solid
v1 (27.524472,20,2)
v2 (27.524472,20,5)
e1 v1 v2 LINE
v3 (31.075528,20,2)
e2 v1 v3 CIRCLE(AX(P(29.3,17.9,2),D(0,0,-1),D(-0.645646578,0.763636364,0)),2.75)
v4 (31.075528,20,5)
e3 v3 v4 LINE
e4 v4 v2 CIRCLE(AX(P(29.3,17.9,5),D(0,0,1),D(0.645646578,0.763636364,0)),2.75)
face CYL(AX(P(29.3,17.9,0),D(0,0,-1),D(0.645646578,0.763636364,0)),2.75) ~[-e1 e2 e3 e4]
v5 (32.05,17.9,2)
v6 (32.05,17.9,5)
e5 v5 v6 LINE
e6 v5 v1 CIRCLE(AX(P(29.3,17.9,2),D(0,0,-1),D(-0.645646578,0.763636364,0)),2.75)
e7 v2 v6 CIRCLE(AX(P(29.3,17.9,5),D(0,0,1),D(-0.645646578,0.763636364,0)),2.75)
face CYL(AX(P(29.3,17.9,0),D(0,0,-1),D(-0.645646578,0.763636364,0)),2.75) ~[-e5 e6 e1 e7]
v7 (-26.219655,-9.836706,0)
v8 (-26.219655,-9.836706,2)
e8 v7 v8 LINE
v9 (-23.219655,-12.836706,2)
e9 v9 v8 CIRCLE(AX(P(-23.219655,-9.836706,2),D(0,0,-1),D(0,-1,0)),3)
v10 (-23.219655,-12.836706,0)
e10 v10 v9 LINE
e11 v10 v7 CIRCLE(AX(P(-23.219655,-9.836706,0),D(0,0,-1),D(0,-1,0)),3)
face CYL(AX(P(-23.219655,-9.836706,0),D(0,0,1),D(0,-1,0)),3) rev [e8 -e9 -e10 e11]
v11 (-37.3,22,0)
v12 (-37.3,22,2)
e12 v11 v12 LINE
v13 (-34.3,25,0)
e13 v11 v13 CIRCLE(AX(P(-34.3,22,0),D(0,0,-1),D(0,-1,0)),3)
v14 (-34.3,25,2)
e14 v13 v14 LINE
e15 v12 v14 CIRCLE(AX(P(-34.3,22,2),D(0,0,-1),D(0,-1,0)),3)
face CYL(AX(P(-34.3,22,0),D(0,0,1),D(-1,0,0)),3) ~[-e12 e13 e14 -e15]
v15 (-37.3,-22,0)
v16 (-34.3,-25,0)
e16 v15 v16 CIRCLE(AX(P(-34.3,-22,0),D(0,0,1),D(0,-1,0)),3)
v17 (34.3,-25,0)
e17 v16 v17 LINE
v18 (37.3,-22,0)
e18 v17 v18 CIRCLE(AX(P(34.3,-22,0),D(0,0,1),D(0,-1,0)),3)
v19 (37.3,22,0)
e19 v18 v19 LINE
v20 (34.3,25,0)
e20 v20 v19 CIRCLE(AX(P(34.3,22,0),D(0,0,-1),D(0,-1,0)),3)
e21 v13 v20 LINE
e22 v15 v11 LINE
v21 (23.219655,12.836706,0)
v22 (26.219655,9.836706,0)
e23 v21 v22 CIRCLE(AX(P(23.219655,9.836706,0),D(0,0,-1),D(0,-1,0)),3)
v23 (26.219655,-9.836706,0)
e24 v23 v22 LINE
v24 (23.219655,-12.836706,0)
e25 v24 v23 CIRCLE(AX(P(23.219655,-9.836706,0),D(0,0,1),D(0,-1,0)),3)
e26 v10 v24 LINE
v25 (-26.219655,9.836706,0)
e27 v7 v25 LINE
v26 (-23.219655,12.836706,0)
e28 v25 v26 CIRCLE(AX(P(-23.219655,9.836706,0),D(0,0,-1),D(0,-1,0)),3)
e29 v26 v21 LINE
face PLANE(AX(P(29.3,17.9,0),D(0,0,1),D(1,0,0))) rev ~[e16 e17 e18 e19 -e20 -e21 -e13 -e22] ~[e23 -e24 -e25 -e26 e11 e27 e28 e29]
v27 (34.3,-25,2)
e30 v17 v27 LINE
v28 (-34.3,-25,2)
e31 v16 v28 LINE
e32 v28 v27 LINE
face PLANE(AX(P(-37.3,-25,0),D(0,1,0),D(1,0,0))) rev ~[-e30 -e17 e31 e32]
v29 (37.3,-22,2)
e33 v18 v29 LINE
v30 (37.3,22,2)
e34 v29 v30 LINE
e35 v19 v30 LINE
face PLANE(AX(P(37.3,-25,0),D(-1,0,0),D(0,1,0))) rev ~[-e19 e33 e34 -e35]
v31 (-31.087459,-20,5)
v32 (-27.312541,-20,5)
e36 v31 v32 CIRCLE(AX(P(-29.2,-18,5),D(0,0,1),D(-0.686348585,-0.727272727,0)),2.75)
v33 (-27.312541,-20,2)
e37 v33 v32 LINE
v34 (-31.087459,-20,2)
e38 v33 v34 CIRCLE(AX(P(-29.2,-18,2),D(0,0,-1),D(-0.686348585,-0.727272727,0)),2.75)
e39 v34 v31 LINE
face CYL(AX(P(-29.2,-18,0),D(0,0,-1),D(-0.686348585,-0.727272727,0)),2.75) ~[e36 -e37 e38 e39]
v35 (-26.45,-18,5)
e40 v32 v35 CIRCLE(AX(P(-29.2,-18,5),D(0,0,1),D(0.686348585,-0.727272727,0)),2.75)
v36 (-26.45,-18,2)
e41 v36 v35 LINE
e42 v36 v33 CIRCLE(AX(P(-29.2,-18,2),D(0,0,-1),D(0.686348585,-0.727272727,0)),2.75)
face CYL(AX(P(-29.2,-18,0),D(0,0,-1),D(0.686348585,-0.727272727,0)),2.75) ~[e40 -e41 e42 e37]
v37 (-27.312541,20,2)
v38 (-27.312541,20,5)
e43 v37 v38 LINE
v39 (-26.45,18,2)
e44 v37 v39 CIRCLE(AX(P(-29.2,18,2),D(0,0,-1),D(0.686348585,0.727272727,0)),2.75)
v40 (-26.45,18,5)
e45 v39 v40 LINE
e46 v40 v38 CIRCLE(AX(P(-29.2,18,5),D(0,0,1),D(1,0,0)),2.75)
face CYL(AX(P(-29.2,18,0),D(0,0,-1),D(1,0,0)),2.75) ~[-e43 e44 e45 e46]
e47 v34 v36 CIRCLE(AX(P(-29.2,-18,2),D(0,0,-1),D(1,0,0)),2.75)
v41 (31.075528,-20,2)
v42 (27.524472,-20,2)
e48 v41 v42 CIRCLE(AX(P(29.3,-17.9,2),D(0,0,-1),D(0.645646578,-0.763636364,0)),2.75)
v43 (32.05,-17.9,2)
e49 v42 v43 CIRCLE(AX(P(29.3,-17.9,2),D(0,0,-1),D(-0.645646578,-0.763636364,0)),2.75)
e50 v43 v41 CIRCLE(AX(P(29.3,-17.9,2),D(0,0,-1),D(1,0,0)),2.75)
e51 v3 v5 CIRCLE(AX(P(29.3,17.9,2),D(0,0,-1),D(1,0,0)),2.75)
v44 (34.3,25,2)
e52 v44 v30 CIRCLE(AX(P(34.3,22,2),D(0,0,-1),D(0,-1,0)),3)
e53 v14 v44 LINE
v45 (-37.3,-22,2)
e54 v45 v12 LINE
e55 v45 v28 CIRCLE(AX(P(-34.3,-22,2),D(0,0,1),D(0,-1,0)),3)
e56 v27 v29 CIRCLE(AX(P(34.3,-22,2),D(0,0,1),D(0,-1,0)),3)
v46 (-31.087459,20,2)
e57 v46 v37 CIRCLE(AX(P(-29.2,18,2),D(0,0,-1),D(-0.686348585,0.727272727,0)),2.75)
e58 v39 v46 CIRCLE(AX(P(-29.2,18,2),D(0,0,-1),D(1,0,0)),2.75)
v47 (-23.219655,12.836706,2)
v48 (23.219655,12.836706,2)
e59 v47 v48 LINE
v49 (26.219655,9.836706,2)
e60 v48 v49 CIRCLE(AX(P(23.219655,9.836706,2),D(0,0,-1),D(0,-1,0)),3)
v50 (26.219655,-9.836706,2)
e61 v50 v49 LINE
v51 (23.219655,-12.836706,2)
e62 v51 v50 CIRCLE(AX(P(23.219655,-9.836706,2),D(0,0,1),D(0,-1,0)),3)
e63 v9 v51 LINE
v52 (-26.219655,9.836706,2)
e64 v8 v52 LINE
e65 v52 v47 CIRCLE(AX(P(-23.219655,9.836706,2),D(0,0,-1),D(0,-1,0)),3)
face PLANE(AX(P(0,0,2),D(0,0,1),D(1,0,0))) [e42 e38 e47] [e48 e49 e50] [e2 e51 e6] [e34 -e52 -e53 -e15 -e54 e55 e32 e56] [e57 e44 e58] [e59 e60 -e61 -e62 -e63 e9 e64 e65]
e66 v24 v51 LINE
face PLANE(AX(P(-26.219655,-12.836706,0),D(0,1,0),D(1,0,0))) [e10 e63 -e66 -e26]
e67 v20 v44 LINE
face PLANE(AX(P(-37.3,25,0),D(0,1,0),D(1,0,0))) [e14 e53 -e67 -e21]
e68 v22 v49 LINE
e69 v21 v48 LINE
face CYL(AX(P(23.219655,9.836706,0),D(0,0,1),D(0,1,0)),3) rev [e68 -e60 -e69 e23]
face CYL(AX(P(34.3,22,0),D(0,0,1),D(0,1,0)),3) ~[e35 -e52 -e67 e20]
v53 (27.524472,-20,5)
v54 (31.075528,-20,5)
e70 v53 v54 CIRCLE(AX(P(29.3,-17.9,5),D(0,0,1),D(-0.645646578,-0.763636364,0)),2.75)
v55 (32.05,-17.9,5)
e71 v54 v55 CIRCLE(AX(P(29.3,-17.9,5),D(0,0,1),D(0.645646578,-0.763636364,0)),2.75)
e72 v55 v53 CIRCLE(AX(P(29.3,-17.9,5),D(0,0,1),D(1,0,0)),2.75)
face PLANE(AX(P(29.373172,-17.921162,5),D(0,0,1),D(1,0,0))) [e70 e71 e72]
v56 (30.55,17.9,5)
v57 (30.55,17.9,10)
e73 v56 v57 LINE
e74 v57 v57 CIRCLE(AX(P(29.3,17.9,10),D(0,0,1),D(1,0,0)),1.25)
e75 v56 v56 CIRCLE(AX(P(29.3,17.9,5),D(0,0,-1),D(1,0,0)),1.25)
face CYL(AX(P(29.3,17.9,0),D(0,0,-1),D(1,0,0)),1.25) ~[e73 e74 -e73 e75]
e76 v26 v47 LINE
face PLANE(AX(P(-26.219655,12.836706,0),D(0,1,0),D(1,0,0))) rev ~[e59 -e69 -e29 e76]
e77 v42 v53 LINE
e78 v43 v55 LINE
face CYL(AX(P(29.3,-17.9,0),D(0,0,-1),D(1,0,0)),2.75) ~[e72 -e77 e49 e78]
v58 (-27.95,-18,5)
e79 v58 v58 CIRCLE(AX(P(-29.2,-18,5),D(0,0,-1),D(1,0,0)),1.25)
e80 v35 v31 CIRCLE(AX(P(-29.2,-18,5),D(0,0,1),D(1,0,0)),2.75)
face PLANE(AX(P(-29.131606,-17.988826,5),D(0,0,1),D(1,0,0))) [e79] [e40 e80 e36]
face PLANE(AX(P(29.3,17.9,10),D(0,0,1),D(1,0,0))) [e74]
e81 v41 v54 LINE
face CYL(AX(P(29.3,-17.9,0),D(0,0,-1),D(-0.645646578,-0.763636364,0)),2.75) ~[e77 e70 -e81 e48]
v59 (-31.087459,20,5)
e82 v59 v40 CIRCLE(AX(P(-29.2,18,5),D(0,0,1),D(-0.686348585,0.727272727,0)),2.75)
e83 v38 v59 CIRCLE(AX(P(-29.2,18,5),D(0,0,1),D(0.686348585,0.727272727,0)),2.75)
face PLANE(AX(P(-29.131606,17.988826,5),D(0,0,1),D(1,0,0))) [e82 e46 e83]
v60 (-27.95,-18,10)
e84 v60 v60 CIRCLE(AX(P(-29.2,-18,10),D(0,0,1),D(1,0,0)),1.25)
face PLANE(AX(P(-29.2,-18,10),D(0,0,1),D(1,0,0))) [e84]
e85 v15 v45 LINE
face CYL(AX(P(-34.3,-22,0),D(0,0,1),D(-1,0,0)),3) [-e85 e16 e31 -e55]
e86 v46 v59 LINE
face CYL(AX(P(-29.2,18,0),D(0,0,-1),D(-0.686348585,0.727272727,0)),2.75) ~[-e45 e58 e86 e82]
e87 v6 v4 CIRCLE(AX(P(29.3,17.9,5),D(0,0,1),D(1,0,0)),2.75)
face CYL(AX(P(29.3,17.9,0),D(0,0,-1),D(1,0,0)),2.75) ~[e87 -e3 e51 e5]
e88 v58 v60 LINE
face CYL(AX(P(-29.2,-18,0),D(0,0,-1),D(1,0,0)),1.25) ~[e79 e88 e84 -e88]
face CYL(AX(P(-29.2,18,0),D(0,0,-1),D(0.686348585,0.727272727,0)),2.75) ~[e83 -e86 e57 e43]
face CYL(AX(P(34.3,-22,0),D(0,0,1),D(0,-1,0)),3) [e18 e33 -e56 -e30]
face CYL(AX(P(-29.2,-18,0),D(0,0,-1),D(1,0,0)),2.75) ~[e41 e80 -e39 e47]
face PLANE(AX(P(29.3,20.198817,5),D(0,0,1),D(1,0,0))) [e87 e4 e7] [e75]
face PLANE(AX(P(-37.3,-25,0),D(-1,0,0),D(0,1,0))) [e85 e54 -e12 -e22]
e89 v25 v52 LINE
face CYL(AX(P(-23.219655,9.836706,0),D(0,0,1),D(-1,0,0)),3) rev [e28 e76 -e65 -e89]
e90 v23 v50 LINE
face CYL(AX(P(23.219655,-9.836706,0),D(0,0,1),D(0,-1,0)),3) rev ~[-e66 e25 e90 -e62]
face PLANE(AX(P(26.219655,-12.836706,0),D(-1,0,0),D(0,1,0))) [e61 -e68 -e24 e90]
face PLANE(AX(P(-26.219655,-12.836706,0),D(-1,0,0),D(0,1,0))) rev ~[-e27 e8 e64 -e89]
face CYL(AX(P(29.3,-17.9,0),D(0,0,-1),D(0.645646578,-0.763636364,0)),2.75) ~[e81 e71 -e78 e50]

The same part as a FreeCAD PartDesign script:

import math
import FreeCAD as App
import Part
import Sketcher

V = App.Vector
Q = App.Units.Quantity


def edges_at(feature, points):
    """Names of the edges that pass closest to the given points."""
    edges = feature.Shape.Edges
    near = lambda p: min(range(len(edges)), key=lambda i: edges[i].distToShape(Part.Vertex(*p))[0])
    return sorted({f"Edge{near(p) + 1}" for p in points})


def add_polygon(sketch, points):
    """Adds a closed chain of lines whose ends are joined by coincident constraints."""
    first, n = sketch.GeometryCount, len(points)
    for a, b in zip(points, points[1:] + points[:1]):
        sketch.addGeometry(Part.LineSegment(App.Vector(*a, 0), App.Vector(*b, 0)), False)
    for i in range(n):
        sketch.addConstraint(Sketcher.Constraint("Coincident", first + i, 2, first + (i + 1) % n, 1))

doc = App.newDocument("Part")
params = doc.addObject("Spreadsheet::Sheet", "Params")
for row, (alias, value) in enumerate([
    ("sketch1_height", "50 mm"),
    ("sketch1_radius", "2.75 mm"),
    ("sketch1_width", "74.6 mm"),
    ("pad1_length", "2 mm"),
    ("sketch2_radius", "2.75 mm"),
    ("pad2_length", "5 mm"),
    ("sketch3_diameter", "2.5 mm"),
    ("pad3_length", "10 mm"),
    ("fillet_radius", "3 mm"),
    ("fillet2_radius", "3 mm"),
], start=1):
    params.set(f"A{row}", alias)
    params.set(f"B{row}", "=" + value)
    params.setAlias(f"B{row}", alias)

body = doc.addObject("PartDesign::Body", "Body")

sketch1 = body.newObject("Sketcher::SketchObject", "Sketch")
sketch1.AttachmentSupport = (doc.getObject("XY_Plane"), [""])
sketch1.MapMode = "FlatFace"
add_polygon(sketch1, [(-37.3, 25), (-37.3, -25), (37.3, -25), (37.3, 25)])
sketch1.addGeometry(Part.ArcOfCircle(Part.Circle(V(29.3, -17.9, 0), V(0, 0, 1), 2.8), math.radians(-130), math.radians(-50)), False)
sketch1.addGeometry(Part.ArcOfCircle(Part.Circle(V(29.3, -17.9, 0), V(0, 0, 1), 2.8), math.radians(0), math.radians(230)), False)
sketch1.addGeometry(Part.ArcOfCircle(Part.Circle(V(29.3, -17.9, 0), V(0, 0, 1), 2.8), math.radians(-50), math.radians(0)), False)
add_polygon(sketch1, [(26.2, -12.8), (-26.2, -12.8), (-26.2, 12.8), (26.2, 12.8)])
sketch1.addGeometry(Part.ArcOfCircle(Part.Circle(V(-29.2, 18, 0), V(0, 0, 1), 2.8), math.radians(47), math.radians(133)), False)
sketch1.addGeometry(Part.ArcOfCircle(Part.Circle(V(-29.2, 18, 0), V(0, 0, 1), 2.8), math.radians(0), math.radians(47)), False)
sketch1.addGeometry(Part.ArcOfCircle(Part.Circle(V(-29.2, 18, 0), V(0, 0, 1), 2.8), math.radians(133), math.radians(360)), False)
sketch1.addGeometry(Part.ArcOfCircle(Part.Circle(V(29.3, 17.9, 0), V(0, 0, 1), 2.8), math.radians(50), math.radians(130)), False)
sketch1.addGeometry(Part.LineSegment(V(31.1, 20, 0), V(27.5, 20, 0)), False)
sketch1.addConstraint([
    Sketcher.Constraint("Tangent", 4, 1, 5, 2),
    Sketcher.Constraint("Tangent", 5, 1, 6, 2),
    Sketcher.Constraint("Tangent", 6, 1, 4, 2),
    Sketcher.Constraint("Tangent", 11, 1, 12, 2),
    Sketcher.Constraint("Tangent", 12, 1, 13, 2),
    Sketcher.Constraint("Tangent", 13, 1, 11, 2),
    Sketcher.Constraint("Coincident", 14, 1, 15, 1),
    Sketcher.Constraint("Coincident", 15, 2, 14, 2),
    Sketcher.Constraint("Vertical", 0),
    Sketcher.Constraint("Horizontal", 1),
    Sketcher.Constraint("Vertical", 2),
    Sketcher.Constraint("Horizontal", 3),
    Sketcher.Constraint("Horizontal", 7),
    Sketcher.Constraint("Vertical", 8),
    Sketcher.Constraint("Horizontal", 9),
    Sketcher.Constraint("Vertical", 10),
    Sketcher.Constraint("Horizontal", 15),
    Sketcher.Constraint("Equal", 6, 11),
    Sketcher.Constraint("Equal", 13, 14),
    Sketcher.Constraint("Symmetric", 0, 2, 2, 2, -1, 1),
    Sketcher.Constraint("Symmetric", 7, 2, 9, 2, -1, 1),
    Sketcher.Constraint("Symmetric", 4, 3, 14, 3, -1),
    Sketcher.Constraint("Horizontal", 6, 3, 5, 1),
    Sketcher.Constraint("Horizontal", 4, 1, 6, 1),
    Sketcher.Constraint("Horizontal", 13, 3, 12, 1),
    Sketcher.Constraint("Horizontal", 11, 1, 13, 1),
    Sketcher.Constraint("Horizontal", 13, 1, 14, 1),
    Sketcher.Constraint("Vertical", 6, 1, 14, 1),
    Sketcher.Constraint("DistanceY", 0, 2, 0, 1, Q("50 mm")),
    Sketcher.Constraint("Radius", 4, Q("2.75 mm")),
    Sketcher.Constraint("DistanceX", 1, 1, 1, 2, Q("74.6 mm")),
    Sketcher.Constraint("DistanceY", -1, 1, 11, 3, Q("18 mm")),
    Sketcher.Constraint("DistanceY", 4, 1, -1, 1, Q("20 mm")),
    Sketcher.Constraint("DistanceX", 4, 3, 1, 2, Q("8 mm")),
    Sketcher.Constraint("DistanceY", 4, 3, -1, 1, Q("17.9 mm")),
    Sketcher.Constraint("DistanceX", 11, 3, -1, 1, Q("29.2 mm")),
    Sketcher.Constraint("DistanceX", 7, 2, 7, 1, Q("52.43931 mm")),
    Sketcher.Constraint("DistanceY", 8, 1, 8, 2, Q("25.673412 mm")),
])
sketch1.setExpression("Constraints[36]", "Params.sketch1_height")
sketch1.setExpression("Constraints[37]", "Params.sketch1_radius")
sketch1.setExpression("Constraints[38]", "Params.sketch1_width")
pad1 = body.newObject("PartDesign::Pad", "Pad")
pad1.Profile = sketch1
pad1.setExpression("Length", "Params.pad1_length")

sketch2 = body.newObject("Sketcher::SketchObject", "Sketch001")
sketch2.AttachmentSupport = (doc.getObject("XY_Plane"), [""])
sketch2.MapMode = "FlatFace"
sketch2.addGeometry([
    Part.ArcOfCircle(Part.Circle(V(29.3, 17.9, 0), V(0, 0, 1), 2.8), math.radians(50), math.radians(130)),
    Part.ArcOfCircle(Part.Circle(V(29.3, 17.9, 0), V(0, 0, 1), 2.8), math.radians(130), math.radians(360)),
    Part.ArcOfCircle(Part.Circle(V(29.3, 17.9, 0), V(0, 0, 1), 2.8), math.radians(0), math.radians(50)),
    Part.ArcOfCircle(Part.Circle(V(-29.2, -18, 0), V(0, 0, 1), 2.8), math.radians(0), math.radians(227)),
    Part.ArcOfCircle(Part.Circle(V(-29.2, -18, 0), V(0, 0, 1), 2.8), math.radians(-133), math.radians(-47)),
    Part.ArcOfCircle(Part.Circle(V(-29.2, -18, 0), V(0, 0, 1), 2.8), math.radians(-47), math.radians(0)),
    Part.ArcOfCircle(Part.Circle(V(-29.2, 18, 0), V(0, 0, 1), 2.8), math.radians(133), math.radians(360)),
    Part.ArcOfCircle(Part.Circle(V(-29.2, 18, 0), V(0, 0, 1), 2.8), math.radians(0), math.radians(47)),
    Part.ArcOfCircle(Part.Circle(V(-29.2, 18, 0), V(0, 0, 1), 2.8), math.radians(47), math.radians(133)),
    Part.ArcOfCircle(Part.Circle(V(29.3, -17.9, 0), V(0, 0, 1), 2.8), math.radians(0), math.radians(230)),
    Part.ArcOfCircle(Part.Circle(V(29.3, -17.9, 0), V(0, 0, 1), 2.8), math.radians(-130), math.radians(-50)),
    Part.ArcOfCircle(Part.Circle(V(29.3, -17.9, 0), V(0, 0, 1), 2.8), math.radians(-50), math.radians(0)),
], False)
sketch2.addConstraint([
    Sketcher.Constraint("Tangent", 0, 2, 1, 1),
    Sketcher.Constraint("Tangent", 1, 2, 2, 1),
    Sketcher.Constraint("Tangent", 2, 2, 0, 1),
    Sketcher.Constraint("Tangent", 3, 2, 4, 1),
    Sketcher.Constraint("Tangent", 4, 2, 5, 1),
    Sketcher.Constraint("Tangent", 5, 2, 3, 1),
    Sketcher.Constraint("Tangent", 6, 2, 7, 1),
    Sketcher.Constraint("Tangent", 7, 2, 8, 1),
    Sketcher.Constraint("Tangent", 8, 2, 6, 1),
    Sketcher.Constraint("Tangent", 9, 2, 10, 1),
    Sketcher.Constraint("Tangent", 10, 2, 11, 1),
    Sketcher.Constraint("Tangent", 11, 2, 9, 1),
    Sketcher.Constraint("Equal", 2, 3),
    Sketcher.Constraint("Equal", 5, 6),
    Sketcher.Constraint("Equal", 8, 9),
    Sketcher.Constraint("Symmetric", 3, 3, 6, 3, -1),
    Sketcher.Constraint("Symmetric", 0, 3, 9, 3, -1),
    Sketcher.Constraint("Horizontal", 2, 3, 1, 2),
    Sketcher.Constraint("Horizontal", 0, 2, 2, 2),
    Sketcher.Constraint("Horizontal", 3, 2, 4, 2),
    Sketcher.Constraint("Horizontal", 4, 3, 5, 2),
    Sketcher.Constraint("Horizontal", 8, 3, 6, 2),
    Sketcher.Constraint("Horizontal", 2, 2, 7, 2),
    Sketcher.Constraint("Horizontal", 7, 2, 8, 2),
    Sketcher.Constraint("Horizontal", 4, 2, 9, 2),
    Sketcher.Constraint("Horizontal", 9, 2, 10, 2),
    Sketcher.Constraint("Horizontal", 10, 3, 11, 2),
    Sketcher.Constraint("Vertical", 4, 2, 7, 2),
    Sketcher.Constraint("Radius", 0, Q("2.75 mm")),
    Sketcher.Constraint("DistanceY", 3, 3, -1, 1, Q("18 mm")),
    Sketcher.Constraint("DistanceY", -1, 1, 0, 2, Q("20 mm")),
    Sketcher.Constraint("DistanceX", -1, 1, 0, 3, Q("29.3 mm")),
    Sketcher.Constraint("DistanceY", -1, 1, 0, 3, Q("17.9 mm")),
    Sketcher.Constraint("DistanceX", 3, 3, -1, 1, Q("29.2 mm")),
])
sketch2.setExpression("Constraints[28]", "Params.sketch2_radius")
pad2 = body.newObject("PartDesign::Pad", "Pad001")
pad2.Profile = sketch2
pad2.setExpression("Length", "Params.pad2_length")

sketch3 = body.newObject("Sketcher::SketchObject", "Sketch002")
sketch3.AttachmentSupport = (doc.getObject("XY_Plane"), [""])
sketch3.MapMode = "FlatFace"
sketch3.addGeometry([
    Part.Circle(V(29.3, 17.9, 0), V(0, 0, 1), 1.2),
    Part.Circle(V(-29.2, -18, 0), V(0, 0, 1), 1.2),
], False)
sketch3.addConstraint([
    Sketcher.Constraint("Equal", 0, 1),
    Sketcher.Constraint("Diameter", 0, Q("2.5 mm")),
    Sketcher.Constraint("DistanceY", 1, 3, -1, 1, Q("18 mm")),
    Sketcher.Constraint("DistanceX", -1, 1, 0, 3, Q("29.3 mm")),
    Sketcher.Constraint("DistanceY", -1, 1, 0, 3, Q("17.9 mm")),
    Sketcher.Constraint("DistanceX", 1, 3, -1, 1, Q("29.2 mm")),
])
sketch3.setExpression("Constraints[1]", "Params.sketch3_diameter")
pad3 = body.newObject("PartDesign::Pad", "Pad002")
pad3.Profile = sketch3
pad3.setExpression("Length", "Params.pad3_length")
doc.recompute()

fillet = body.newObject("PartDesign::Fillet", "Fillet")
fillet.Base = (pad3, edges_at(pad3, [
    (37.3, 25, 1),
    (37.3, -25, 1),
    (-37.3, -25, 1),
    (-37.3, 25, 1),
]))
fillet.setExpression("Radius", "Params.fillet_radius")
doc.recompute()

fillet2 = body.newObject("PartDesign::Fillet", "Fillet001")
fillet2.Base = (fillet, edges_at(fillet, [
    (-26.22, 12.837, 1),
    (26.22, 12.837, 1),
    (26.22, -12.837, 1),
    (-26.22, -12.837, 1),
]))
fillet2.setExpression("Radius", "Params.fillet2_radius")

doc.recompute()
